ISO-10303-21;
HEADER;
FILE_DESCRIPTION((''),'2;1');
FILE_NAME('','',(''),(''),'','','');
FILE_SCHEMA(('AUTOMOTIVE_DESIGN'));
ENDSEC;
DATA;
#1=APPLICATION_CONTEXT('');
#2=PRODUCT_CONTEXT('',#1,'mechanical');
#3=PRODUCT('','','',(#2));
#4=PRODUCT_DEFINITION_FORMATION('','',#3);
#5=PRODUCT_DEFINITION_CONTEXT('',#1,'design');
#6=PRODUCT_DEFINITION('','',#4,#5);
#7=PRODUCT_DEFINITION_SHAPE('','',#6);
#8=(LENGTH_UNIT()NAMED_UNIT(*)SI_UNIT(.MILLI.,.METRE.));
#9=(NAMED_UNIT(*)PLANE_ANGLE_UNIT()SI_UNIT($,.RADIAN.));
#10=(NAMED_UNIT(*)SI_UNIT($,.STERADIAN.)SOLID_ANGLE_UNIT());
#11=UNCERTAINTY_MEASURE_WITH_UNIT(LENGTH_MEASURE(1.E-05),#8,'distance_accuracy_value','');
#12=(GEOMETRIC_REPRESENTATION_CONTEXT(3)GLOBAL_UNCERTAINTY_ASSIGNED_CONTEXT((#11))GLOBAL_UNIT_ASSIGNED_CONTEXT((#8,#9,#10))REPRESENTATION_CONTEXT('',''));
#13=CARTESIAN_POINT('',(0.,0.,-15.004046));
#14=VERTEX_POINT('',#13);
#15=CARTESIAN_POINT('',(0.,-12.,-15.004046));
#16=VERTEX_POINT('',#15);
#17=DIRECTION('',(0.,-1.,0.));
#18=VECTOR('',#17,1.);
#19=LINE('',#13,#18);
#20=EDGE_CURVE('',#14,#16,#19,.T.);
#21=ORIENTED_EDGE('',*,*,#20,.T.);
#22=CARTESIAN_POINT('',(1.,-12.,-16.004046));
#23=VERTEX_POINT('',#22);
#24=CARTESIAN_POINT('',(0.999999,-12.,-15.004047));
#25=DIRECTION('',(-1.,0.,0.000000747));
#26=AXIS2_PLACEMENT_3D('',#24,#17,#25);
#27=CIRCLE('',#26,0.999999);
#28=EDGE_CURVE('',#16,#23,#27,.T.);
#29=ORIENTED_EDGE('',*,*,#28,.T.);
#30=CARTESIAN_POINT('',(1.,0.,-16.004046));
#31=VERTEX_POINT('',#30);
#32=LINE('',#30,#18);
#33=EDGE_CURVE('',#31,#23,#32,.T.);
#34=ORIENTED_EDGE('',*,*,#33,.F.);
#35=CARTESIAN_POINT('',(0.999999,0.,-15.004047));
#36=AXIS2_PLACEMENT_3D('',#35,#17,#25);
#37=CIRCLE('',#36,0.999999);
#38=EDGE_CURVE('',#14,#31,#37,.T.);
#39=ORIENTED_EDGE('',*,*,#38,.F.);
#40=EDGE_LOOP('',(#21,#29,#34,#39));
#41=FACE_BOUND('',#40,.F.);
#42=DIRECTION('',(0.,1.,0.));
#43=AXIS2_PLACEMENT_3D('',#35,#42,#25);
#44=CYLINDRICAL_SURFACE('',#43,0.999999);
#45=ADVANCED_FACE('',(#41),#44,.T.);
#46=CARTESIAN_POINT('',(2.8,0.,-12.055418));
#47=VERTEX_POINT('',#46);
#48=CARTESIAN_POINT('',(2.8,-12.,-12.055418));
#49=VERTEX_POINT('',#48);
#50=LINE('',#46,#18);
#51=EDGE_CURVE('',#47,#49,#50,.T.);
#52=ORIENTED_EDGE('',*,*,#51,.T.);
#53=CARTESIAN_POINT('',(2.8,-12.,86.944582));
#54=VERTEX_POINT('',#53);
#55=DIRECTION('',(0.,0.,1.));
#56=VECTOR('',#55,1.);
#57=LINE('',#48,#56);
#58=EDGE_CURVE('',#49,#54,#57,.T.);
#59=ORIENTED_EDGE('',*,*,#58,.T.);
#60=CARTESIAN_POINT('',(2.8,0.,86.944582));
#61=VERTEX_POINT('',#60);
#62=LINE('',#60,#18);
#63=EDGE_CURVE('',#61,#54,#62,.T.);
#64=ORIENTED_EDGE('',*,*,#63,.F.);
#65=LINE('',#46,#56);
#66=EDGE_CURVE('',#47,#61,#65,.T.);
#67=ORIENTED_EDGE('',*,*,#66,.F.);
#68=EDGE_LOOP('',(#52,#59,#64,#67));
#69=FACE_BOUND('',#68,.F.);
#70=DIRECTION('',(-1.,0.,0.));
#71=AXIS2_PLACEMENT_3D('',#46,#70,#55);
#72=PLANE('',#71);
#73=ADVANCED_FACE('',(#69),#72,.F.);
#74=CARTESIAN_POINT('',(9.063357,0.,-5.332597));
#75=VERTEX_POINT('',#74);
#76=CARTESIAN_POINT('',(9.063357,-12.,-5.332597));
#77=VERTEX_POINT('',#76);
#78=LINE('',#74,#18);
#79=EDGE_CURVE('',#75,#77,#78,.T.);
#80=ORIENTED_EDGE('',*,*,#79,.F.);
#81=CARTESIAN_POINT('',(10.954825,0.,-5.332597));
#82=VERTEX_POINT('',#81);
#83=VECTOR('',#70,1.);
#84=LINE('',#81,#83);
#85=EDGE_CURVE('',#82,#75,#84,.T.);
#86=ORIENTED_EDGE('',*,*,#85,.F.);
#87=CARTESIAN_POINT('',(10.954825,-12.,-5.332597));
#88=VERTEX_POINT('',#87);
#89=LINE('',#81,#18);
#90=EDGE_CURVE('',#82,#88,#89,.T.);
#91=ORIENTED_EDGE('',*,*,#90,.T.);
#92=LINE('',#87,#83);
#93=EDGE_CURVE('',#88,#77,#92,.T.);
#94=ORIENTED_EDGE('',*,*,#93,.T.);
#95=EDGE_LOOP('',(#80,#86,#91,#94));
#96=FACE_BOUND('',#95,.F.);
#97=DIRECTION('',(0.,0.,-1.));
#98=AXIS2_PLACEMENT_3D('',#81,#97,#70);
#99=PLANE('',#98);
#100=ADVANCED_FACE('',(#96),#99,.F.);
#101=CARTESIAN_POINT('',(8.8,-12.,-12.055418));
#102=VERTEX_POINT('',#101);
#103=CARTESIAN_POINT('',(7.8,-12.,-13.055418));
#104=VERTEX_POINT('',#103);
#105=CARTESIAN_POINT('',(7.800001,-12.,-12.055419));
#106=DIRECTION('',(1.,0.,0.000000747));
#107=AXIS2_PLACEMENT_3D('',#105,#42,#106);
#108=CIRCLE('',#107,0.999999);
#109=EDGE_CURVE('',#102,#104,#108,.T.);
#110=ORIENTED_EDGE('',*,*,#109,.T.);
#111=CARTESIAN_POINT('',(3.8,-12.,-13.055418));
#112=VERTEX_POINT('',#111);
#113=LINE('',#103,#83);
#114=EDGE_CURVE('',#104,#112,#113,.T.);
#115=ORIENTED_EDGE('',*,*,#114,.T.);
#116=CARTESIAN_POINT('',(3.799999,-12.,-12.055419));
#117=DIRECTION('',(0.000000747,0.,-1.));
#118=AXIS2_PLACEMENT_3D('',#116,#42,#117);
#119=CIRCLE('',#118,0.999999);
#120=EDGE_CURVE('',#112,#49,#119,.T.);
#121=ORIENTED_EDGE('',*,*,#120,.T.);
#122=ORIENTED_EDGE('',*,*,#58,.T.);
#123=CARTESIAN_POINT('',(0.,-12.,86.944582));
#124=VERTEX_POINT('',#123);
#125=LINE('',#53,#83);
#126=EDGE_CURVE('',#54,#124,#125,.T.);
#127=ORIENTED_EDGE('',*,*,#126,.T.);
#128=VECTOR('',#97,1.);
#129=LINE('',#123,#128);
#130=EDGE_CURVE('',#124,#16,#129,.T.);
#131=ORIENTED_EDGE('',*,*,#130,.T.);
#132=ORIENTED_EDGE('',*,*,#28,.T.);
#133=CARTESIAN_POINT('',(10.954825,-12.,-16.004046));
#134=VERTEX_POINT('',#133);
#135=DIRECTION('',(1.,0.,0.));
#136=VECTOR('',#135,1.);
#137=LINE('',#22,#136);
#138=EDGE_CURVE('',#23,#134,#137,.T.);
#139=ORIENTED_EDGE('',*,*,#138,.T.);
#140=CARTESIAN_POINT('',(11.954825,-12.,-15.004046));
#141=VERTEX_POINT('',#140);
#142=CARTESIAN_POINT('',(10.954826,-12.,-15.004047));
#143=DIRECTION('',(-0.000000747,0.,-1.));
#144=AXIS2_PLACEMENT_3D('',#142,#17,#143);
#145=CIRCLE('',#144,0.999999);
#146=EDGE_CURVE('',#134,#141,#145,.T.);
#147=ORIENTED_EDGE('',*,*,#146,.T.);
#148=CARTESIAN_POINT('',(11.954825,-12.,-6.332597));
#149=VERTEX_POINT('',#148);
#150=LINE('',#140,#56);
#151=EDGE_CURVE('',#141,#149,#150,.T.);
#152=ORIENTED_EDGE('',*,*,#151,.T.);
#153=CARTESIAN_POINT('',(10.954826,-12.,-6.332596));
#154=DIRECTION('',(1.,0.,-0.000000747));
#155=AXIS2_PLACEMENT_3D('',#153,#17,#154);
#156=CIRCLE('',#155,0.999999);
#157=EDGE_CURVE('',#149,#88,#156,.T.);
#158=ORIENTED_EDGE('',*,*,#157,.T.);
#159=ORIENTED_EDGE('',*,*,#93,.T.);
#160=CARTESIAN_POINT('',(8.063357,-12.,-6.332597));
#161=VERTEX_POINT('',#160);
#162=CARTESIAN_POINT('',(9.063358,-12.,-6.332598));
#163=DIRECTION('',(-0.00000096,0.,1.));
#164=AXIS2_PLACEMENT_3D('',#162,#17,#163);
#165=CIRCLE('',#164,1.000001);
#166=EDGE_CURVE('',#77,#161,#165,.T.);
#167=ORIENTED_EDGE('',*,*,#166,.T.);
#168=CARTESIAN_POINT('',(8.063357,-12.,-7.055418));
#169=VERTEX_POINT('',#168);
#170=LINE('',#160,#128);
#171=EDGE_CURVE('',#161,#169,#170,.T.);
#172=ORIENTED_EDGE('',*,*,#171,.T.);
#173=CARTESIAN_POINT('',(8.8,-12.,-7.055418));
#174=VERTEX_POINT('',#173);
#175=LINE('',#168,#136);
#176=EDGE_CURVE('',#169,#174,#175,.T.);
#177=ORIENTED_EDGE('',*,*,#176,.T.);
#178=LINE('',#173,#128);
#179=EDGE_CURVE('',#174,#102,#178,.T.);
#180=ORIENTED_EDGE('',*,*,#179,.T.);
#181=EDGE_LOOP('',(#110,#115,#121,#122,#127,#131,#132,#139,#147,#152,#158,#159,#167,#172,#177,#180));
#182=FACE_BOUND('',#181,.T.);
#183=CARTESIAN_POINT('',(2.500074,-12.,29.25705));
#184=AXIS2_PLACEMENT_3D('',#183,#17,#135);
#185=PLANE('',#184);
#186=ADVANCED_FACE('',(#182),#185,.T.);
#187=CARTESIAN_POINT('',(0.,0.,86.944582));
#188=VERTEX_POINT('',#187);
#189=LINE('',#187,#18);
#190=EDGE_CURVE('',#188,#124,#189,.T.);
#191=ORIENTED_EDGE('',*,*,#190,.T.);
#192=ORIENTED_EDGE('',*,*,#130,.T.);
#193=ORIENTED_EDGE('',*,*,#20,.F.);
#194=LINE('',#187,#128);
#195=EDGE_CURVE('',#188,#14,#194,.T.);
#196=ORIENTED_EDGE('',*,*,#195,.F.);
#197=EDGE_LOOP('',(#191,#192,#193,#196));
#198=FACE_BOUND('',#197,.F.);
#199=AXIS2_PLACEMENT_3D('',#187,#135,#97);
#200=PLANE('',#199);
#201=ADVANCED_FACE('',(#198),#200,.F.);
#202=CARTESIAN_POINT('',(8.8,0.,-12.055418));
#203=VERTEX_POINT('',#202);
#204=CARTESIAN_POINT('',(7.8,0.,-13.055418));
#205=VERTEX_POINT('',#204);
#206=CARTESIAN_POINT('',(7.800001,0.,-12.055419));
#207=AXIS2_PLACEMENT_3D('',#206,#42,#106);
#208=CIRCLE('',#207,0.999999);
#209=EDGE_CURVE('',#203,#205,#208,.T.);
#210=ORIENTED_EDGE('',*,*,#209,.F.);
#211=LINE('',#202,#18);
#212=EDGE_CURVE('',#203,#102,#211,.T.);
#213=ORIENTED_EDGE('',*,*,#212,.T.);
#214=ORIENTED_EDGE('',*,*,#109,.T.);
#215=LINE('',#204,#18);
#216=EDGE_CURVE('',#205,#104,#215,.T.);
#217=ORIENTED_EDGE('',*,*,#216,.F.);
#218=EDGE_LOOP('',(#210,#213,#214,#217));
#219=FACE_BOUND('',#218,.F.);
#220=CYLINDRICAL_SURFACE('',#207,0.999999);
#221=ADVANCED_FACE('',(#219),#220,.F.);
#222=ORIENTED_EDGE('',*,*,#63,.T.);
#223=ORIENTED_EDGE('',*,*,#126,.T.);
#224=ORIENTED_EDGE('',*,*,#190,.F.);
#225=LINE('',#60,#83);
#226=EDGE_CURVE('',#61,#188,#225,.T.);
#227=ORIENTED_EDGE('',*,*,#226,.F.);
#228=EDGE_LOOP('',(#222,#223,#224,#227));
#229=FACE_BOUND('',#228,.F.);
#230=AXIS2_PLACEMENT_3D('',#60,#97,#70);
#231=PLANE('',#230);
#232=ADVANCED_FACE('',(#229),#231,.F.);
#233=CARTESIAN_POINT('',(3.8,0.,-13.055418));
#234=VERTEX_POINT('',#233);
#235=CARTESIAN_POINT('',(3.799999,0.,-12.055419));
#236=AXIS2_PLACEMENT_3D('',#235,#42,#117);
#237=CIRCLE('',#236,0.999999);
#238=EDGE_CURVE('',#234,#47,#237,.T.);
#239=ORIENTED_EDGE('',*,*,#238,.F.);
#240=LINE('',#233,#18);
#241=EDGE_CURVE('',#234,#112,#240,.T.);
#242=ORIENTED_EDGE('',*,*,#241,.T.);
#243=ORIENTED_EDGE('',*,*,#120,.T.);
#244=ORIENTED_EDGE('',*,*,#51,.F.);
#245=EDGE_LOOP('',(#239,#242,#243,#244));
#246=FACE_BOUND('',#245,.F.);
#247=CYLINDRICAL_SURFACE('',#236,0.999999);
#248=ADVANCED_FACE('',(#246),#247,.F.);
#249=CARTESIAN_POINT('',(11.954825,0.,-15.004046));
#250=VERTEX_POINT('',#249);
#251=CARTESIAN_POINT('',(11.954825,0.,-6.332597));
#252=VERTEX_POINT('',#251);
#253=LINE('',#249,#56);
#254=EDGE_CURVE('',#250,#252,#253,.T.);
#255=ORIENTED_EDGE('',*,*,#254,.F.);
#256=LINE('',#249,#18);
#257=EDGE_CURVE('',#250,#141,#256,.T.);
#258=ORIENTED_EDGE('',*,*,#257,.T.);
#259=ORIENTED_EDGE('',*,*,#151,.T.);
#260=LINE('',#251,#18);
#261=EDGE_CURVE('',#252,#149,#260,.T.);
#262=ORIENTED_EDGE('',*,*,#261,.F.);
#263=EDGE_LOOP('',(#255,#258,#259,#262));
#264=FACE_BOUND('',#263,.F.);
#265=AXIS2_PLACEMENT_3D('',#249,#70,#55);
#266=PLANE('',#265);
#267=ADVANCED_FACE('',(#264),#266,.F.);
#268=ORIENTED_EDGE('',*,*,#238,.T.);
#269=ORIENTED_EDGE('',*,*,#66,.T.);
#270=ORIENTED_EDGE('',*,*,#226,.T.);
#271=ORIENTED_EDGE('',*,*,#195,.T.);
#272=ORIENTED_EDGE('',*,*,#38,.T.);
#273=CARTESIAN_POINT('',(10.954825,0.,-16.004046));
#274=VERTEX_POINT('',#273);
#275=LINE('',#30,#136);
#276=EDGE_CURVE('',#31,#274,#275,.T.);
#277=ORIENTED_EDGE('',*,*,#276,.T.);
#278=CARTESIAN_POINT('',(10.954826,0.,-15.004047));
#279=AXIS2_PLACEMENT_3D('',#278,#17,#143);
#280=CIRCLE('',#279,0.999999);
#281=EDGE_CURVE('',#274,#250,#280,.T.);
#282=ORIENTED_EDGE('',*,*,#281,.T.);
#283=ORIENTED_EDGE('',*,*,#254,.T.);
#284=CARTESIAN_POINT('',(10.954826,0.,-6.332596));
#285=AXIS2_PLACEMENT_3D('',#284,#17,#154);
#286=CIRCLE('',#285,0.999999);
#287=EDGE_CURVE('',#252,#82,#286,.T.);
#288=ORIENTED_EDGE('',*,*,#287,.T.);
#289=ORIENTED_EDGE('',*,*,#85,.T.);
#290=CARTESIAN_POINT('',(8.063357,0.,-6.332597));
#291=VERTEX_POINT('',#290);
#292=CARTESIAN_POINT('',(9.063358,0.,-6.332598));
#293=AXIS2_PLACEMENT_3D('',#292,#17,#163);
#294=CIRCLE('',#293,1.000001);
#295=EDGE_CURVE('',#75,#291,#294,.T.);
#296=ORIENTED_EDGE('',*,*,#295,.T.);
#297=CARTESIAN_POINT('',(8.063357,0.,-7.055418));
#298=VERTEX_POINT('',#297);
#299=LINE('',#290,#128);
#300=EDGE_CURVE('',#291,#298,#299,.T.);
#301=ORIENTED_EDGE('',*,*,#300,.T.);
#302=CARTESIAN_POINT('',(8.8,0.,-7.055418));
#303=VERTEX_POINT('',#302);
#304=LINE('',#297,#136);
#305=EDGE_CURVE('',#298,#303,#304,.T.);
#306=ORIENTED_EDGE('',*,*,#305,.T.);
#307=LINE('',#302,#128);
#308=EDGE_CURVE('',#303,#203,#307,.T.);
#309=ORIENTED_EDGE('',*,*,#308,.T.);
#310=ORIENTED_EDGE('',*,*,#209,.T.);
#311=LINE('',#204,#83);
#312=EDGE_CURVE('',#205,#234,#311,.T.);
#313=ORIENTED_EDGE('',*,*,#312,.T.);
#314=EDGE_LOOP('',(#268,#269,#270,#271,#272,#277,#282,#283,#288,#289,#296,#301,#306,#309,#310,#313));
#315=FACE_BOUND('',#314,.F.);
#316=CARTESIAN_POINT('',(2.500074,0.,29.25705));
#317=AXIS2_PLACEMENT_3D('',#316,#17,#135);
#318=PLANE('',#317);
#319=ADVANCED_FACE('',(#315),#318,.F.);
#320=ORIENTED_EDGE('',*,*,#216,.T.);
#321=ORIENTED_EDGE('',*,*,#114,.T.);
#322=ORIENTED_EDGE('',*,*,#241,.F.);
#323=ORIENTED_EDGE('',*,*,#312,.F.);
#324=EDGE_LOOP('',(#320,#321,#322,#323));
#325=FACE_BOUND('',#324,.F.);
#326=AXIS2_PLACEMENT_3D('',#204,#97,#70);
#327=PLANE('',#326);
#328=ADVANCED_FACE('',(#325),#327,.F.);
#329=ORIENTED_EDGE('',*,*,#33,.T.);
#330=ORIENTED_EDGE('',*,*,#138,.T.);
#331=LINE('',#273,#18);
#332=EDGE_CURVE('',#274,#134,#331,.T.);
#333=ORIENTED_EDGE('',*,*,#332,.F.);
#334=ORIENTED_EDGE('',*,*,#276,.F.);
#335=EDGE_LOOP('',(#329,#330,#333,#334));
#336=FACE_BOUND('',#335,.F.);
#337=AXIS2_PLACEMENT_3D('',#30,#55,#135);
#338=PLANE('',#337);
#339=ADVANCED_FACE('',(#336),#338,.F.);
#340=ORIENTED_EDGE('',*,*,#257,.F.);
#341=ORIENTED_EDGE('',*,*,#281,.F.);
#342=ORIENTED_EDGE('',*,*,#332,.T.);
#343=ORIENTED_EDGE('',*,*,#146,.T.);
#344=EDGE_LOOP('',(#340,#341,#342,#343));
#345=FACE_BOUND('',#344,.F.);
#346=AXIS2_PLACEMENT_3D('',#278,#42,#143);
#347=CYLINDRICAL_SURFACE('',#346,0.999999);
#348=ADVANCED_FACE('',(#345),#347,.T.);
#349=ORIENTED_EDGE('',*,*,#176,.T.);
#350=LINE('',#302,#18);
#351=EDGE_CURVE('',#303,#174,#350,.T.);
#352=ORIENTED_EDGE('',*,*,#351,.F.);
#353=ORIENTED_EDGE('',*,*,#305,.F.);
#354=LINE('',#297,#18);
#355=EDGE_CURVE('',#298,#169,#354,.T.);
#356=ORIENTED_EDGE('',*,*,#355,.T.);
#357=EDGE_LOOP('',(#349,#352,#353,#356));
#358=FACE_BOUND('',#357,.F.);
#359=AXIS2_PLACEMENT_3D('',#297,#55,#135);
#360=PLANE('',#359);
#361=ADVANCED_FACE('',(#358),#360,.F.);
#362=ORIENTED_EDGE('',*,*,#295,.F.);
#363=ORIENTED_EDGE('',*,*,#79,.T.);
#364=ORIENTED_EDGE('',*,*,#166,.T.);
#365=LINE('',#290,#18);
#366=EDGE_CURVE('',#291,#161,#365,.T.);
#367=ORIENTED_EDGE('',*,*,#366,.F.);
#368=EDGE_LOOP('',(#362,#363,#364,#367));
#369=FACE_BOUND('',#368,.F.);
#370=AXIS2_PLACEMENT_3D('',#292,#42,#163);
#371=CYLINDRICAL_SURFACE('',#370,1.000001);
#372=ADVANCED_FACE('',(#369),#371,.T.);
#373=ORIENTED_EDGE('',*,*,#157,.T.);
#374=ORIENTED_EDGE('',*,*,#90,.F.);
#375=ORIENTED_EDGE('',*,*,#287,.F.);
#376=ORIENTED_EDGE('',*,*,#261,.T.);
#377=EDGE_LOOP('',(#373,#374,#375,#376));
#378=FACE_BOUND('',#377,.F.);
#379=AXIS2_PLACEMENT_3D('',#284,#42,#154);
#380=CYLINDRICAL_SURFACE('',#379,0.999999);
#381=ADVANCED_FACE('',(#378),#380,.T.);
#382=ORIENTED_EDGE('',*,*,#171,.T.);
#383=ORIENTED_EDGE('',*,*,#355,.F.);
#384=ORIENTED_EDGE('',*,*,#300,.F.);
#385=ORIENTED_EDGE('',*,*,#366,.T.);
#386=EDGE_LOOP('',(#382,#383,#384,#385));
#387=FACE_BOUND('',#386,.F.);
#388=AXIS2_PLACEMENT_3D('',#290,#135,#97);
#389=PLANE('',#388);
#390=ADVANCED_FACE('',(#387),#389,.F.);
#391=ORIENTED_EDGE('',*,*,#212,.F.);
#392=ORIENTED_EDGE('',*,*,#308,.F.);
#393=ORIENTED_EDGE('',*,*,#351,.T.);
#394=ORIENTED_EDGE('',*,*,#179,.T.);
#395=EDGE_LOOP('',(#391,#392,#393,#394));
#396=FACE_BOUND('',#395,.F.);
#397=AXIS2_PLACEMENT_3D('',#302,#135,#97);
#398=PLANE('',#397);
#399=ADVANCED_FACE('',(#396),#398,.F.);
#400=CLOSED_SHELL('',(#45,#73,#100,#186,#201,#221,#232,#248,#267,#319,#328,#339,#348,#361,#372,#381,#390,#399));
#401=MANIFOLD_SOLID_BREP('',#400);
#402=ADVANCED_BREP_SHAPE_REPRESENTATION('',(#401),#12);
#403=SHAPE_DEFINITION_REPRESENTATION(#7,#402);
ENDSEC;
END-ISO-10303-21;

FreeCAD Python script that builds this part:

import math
import FreeCAD as App
import Part
import Sketcher

V = App.Vector
Q = App.Units.Quantity

doc = App.newDocument("Part")
body = doc.addObject("PartDesign::Body", "Body")

sketch1 = body.newObject("Sketcher::SketchObject", "Sketch")
sketch1.AttachmentSupport = (doc.getObject("XZ_Plane"), [""])
sketch1.MapMode = "FlatFace"
sketch1.addGeometry([
    Part.LineSegment(V(2.8, 86.944582, 0), V(0, 86.944582, 0)),
    Part.LineSegment(V(0, 86.944582, 0), V(0, -15.004046, 0)),
    Part.ArcOfCircle(Part.Circle(V(0.999999, -15.004047, 0), V(0, 0, 1), 0.999999), math.radians(179.999957), math.radians(270.000043)),
    Part.LineSegment(V(1, -16.004046, 0), V(10.954825, -16.004046, 0)),
    Part.ArcOfCircle(Part.Circle(V(10.954826, -15.004047, 0), V(0, 0, 1), 0.999999), math.radians(-90.000043), math.radians(0.000043)),
    Part.LineSegment(V(11.954825, -15.004046, 0), V(11.954825, -6.332597, 0)),
    Part.ArcOfCircle(Part.Circle(V(10.954826, -6.332596, 0), V(0, 0, 1), 0.999999), math.radians(-0.000043), math.radians(90.000043)),
    Part.LineSegment(V(10.954825, -5.332597, 0), V(9.063357, -5.332597, 0)),
    Part.ArcOfCircle(Part.Circle(V(9.063358, -6.332598, 0), V(0, 0, 1), 1.000001), math.radians(90.000055), math.radians(179.999945)),
    Part.LineSegment(V(8.063357, -6.332597, 0), V(8.063357, -7.055418, 0)),
    Part.LineSegment(V(8.063357, -7.055418, 0), V(8.8, -7.055418, 0)),
    Part.LineSegment(V(8.8, -7.055418, 0), V(8.8, -12.055418, 0)),
    Part.ArcOfCircle(Part.Circle(V(7.800001, -12.055419, 0), V(0, 0, 1), 0.999999), math.radians(-90.000043), math.radians(0.000043)),
    Part.LineSegment(V(7.8, -13.055418, 0), V(3.8, -13.055418, 0)),
    Part.ArcOfCircle(Part.Circle(V(3.799999, -12.055419, 0), V(0, 0, 1), 0.999999), math.radians(179.999957), math.radians(270.000043)),
    Part.LineSegment(V(2.8, -12.055418, 0), V(2.8, 86.944582, 0)),
], False)
sketch1.addConstraint([
    Sketcher.Constraint("Coincident", 0, 2, 1, 1),
    Sketcher.Constraint("Tangent", 1, 2, 2, 1),
    Sketcher.Constraint("Tangent", 2, 2, 3, 1),
    Sketcher.Constraint("Tangent", 3, 2, 4, 1),
    Sketcher.Constraint("Tangent", 4, 2, 5, 1),
    Sketcher.Constraint("Tangent", 5, 2, 6, 1),
    Sketcher.Constraint("Tangent", 6, 2, 7, 1),
    Sketcher.Constraint("Tangent", 7, 2, 8, 1),
    Sketcher.Constraint("Tangent", 8, 2, 9, 1),
    Sketcher.Constraint("Coincident", 9, 2, 10, 1),
    Sketcher.Constraint("Coincident", 10, 2, 11, 1),
    Sketcher.Constraint("Tangent", 11, 2, 12, 2),
    Sketcher.Constraint("Tangent", 12, 1, 13, 1),
    Sketcher.Constraint("Tangent", 13, 2, 14, 2),
    Sketcher.Constraint("Tangent", 14, 1, 15, 1),
    Sketcher.Constraint("Coincident", 15, 2, 0, 1),
    Sketcher.Constraint("Horizontal", 0),
    Sketcher.Constraint("Vertical", 1),
    Sketcher.Constraint("Horizontal", 3),
    Sketcher.Constraint("Vertical", 5),
    Sketcher.Constraint("Horizontal", 7),
    Sketcher.Constraint("Vertical", 9),
    Sketcher.Constraint("Horizontal", 10),
    Sketcher.Constraint("Vertical", 11),
    Sketcher.Constraint("Horizontal", 13),
    Sketcher.Constraint("Vertical", 15),
    Sketcher.Constraint("Equal", 2, 4),
    Sketcher.Constraint("Equal", 4, 6),
    Sketcher.Constraint("Equal", 6, 8),
    Sketcher.Constraint("Equal", 8, 12),
    Sketcher.Constraint("Equal", 12, 14),
    Sketcher.Constraint("PointOnObject", 0, 2, -2),
    Sketcher.Constraint("Radius", 2, Q("0.999999 mm")),
    Sketcher.Constraint("DistanceX", 13, 2, 13, 1, Q("4 mm")),
    Sketcher.Constraint("DistanceY", 11, 2, 11, 1, Q("5 mm")),
    Sketcher.Constraint("DistanceY", 15, 1, 15, 2, Q("99 mm")),
    Sketcher.Constraint("DistanceX", 0, 2, 0, 1, Q("2.8 mm")),
    Sketcher.Constraint("DistanceY", 1, 2, 1, 1, Q("101.948628 mm")),
    Sketcher.Constraint("DistanceY", 5, 1, 5, 2, Q("8.671449 mm")),
    Sketcher.Constraint("DistanceX", 3, 1, 3, 2, Q("9.954825 mm")),
    Sketcher.Constraint("DistanceX", 7, 2, 7, 1, Q("1.891468 mm")),
    Sketcher.Constraint("DistanceY", 12, 3, -1, 1, Q("12.055419 mm")),
])
pad1 = body.newObject("PartDesign::Pad", "Pad")
pad1.Profile = sketch1
pad1.Length = 12

doc.recompute()
